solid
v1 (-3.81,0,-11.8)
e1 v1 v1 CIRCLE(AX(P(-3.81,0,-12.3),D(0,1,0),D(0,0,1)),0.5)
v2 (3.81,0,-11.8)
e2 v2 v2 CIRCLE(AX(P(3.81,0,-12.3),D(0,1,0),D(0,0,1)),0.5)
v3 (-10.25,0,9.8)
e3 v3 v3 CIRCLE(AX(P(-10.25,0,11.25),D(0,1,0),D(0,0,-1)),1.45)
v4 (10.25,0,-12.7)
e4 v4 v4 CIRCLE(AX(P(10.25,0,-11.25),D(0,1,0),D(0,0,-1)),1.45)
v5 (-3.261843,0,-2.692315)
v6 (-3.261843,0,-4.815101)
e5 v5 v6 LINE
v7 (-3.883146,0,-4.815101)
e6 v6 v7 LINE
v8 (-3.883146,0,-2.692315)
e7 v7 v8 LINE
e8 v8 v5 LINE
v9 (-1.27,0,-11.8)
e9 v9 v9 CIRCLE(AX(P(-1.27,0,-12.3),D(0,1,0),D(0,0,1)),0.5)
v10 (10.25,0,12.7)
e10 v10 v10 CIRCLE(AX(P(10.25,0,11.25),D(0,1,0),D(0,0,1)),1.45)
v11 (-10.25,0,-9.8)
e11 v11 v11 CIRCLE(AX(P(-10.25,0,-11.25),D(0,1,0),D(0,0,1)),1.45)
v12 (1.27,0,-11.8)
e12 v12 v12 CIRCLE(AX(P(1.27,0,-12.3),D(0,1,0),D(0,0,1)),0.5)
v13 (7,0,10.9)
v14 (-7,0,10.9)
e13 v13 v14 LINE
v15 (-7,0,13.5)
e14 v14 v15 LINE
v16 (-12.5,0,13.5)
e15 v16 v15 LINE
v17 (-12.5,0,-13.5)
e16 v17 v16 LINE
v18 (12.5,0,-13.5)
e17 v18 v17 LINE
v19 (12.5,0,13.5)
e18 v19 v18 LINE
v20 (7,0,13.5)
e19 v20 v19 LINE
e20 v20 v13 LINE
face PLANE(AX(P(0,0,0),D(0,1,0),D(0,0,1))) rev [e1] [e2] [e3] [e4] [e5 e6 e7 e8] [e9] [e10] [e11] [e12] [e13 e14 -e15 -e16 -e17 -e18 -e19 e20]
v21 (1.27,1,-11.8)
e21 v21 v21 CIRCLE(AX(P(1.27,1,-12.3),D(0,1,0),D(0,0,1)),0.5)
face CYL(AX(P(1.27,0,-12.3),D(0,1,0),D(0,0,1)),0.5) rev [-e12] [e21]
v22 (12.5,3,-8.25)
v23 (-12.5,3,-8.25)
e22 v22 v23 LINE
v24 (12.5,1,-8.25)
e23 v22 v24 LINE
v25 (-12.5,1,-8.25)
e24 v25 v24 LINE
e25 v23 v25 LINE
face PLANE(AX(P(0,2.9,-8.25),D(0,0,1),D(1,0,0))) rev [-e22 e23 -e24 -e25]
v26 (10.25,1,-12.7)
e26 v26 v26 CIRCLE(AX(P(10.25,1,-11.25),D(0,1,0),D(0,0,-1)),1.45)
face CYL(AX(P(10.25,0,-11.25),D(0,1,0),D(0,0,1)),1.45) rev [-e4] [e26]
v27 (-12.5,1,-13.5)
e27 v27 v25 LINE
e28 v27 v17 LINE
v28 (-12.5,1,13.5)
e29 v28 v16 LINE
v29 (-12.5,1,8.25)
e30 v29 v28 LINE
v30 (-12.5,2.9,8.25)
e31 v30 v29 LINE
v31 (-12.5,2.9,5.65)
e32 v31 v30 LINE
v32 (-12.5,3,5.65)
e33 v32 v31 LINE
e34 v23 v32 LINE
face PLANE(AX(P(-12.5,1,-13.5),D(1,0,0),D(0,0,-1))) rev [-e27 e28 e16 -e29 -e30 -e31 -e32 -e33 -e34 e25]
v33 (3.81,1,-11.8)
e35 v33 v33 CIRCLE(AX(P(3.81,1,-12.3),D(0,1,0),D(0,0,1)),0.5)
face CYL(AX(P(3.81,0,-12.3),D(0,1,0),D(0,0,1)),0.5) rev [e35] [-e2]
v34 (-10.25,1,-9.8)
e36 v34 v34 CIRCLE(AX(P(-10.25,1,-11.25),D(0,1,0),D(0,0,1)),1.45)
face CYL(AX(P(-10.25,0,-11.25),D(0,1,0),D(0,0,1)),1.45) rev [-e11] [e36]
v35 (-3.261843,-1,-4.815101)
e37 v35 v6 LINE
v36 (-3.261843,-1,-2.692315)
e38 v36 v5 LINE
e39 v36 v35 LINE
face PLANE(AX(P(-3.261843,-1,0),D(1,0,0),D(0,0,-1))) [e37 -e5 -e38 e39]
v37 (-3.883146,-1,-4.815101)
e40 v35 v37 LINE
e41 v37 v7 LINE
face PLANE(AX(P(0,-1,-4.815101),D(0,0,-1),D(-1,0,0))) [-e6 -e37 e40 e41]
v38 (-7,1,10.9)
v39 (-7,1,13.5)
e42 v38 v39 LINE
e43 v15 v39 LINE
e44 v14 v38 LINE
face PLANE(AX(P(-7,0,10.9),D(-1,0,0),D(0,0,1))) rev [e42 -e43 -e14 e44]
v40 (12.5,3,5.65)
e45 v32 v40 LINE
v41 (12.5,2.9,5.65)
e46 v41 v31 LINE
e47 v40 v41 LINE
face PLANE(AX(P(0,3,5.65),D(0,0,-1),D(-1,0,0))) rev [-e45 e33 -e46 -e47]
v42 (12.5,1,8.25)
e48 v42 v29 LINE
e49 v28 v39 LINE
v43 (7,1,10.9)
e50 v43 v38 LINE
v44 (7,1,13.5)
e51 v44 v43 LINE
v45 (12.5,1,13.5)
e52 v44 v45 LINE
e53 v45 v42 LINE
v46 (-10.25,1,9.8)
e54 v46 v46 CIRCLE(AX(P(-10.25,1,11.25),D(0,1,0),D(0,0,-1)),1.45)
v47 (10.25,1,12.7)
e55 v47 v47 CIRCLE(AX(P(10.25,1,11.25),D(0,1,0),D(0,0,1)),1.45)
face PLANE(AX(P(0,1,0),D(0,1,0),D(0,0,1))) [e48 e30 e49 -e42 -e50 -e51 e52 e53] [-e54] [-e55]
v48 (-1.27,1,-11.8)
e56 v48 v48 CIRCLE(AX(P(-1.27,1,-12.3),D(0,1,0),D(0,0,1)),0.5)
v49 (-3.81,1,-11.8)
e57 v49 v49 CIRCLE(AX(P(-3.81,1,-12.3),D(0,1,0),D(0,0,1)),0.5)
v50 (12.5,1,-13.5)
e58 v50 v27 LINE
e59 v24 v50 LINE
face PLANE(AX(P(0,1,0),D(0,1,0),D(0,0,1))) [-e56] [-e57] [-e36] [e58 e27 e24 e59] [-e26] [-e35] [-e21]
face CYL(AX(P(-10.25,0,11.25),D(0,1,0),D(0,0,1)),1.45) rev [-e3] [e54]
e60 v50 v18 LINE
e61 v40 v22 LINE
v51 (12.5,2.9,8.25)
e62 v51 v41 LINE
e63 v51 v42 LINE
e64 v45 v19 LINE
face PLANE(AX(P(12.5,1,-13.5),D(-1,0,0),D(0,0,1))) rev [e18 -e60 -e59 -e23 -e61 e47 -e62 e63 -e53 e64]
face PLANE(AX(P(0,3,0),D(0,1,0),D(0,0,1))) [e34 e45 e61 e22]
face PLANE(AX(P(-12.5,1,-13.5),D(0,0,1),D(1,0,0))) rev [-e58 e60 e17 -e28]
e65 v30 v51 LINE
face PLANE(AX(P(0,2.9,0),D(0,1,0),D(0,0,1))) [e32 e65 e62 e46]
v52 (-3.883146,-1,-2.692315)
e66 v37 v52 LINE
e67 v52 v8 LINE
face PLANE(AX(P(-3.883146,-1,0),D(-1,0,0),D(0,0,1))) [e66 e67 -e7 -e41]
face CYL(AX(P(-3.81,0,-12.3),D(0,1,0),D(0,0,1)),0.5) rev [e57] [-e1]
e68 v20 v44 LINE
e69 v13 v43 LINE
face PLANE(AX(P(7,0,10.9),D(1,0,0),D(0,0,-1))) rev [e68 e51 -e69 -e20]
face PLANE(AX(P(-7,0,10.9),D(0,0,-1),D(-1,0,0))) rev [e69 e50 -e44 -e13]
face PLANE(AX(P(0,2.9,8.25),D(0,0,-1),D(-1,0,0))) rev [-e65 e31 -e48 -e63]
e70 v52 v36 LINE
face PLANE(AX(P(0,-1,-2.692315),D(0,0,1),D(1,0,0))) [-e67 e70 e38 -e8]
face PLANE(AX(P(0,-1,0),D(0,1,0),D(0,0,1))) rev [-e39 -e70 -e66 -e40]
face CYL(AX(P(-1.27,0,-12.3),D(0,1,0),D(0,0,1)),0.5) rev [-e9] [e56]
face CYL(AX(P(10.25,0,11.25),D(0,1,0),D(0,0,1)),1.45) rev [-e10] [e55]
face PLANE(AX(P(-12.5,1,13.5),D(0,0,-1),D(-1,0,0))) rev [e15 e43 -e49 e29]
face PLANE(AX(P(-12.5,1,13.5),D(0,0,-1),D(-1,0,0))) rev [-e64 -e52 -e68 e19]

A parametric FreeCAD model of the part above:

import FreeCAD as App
import Part
import Sketcher


def add_polygon(sketch, points):
    """Adds a closed chain of lines whose ends are joined by coincident constraints."""
    first, n = sketch.GeometryCount, len(points)
    for a, b in zip(points, points[1:] + points[:1]):
        sketch.addGeometry(Part.LineSegment(App.Vector(*a, 0), App.Vector(*b, 0)), False)
    for i in range(n):
        sketch.addConstraint(Sketcher.Constraint("Coincident", first + i, 2, first + (i + 1) % n, 1))

doc = App.newDocument("Part")
body = doc.addObject("PartDesign::Body", "Body")

sketch1 = doc.addObject("Sketcher::SketchObject", "Sketch")
body.addObject(sketch1)
sketch1.AttachmentSupport = (doc.XZ_Plane, [""])
sketch1.MapMode = "FlatFace"
add_polygon(sketch1, [(-12, -14), (-12, 14), (12, 14), (12, -14)])
sketch1.addConstraint([
    Sketcher.Constraint("Vertical", 0),
    Sketcher.Constraint("Horizontal", 1),
    Sketcher.Constraint("Vertical", 2),
    Sketcher.Constraint("Horizontal", 3),
    Sketcher.Constraint("Symmetric", 0, 2, 2, 2, -1, 1),
    Sketcher.Constraint("DistanceX", 1, 1, 1, 2, 25.0),
    Sketcher.Constraint("DistanceY", 0, 1, 0, 2, 27.0),
])
pad1 = doc.addObject("PartDesign::Pad", "Pad")
body.addObject(pad1)
pad1.Profile = sketch1
pad1.Length = 1
pad1.Reversed = True

sketch2 = doc.addObject("Sketcher::SketchObject", "Sketch001")
body.addObject(sketch2)
sketch2.AttachmentSupport = (doc.XZ_Plane, [""])
sketch2.MapMode = "FlatFace"
add_polygon(sketch2, [(-12, -8), (-12, 8), (12, 8), (12, -8)])
sketch2.addConstraint([
    Sketcher.Constraint("Vertical", 0),
    Sketcher.Constraint("Horizontal", 1),
    Sketcher.Constraint("Vertical", 2),
    Sketcher.Constraint("Horizontal", 3),
    Sketcher.Constraint("Symmetric", 0, 2, 2, 2, -1, 1),
    Sketcher.Constraint("DistanceX", 1, 1, 1, 2, 25.0),
    Sketcher.Constraint("DistanceY", 0, 1, 0, 2, 16.5),
])
pad2 = doc.addObject("PartDesign::Pad", "Pad001")
body.addObject(pad2)
pad2.Profile = sketch2
pad2.Length = 2.9
pad2.Reversed = True

sketch3 = doc.addObject("Sketcher::SketchObject", "Sketch002")
body.addObject(sketch3)
sketch3.AttachmentSupport = (doc.XZ_Plane, [""])
sketch3.MapMode = "FlatFace"
add_polygon(sketch3, [(-12, -8), (-12, 6), (12, 6), (12, -8)])
sketch3.addConstraint([
    Sketcher.Constraint("Vertical", 0),
    Sketcher.Constraint("Horizontal", 1),
    Sketcher.Constraint("Vertical", 2),
    Sketcher.Constraint("Horizontal", 3),
    Sketcher.Constraint("DistanceX", 1, 1, 1, 2, 25.0),
    Sketcher.Constraint("DistanceY", 0, 1, 0, 2, 13.9),
    Sketcher.Constraint("DistanceX", 0, 2, -1, 1, 12.5),
    Sketcher.Constraint("DistanceY", -1, 1, 0, 2, 5.65),
])
pad3 = doc.addObject("PartDesign::Pad", "Pad002")
body.addObject(pad3)
pad3.Profile = sketch3
pad3.Length = 3
pad3.Reversed = True

sketch4 = doc.addObject("Sketcher::SketchObject", "Sketch003")
body.addObject(sketch4)
sketch4.AttachmentSupport = (doc.XZ_Plane, [""])
sketch4.MapMode = "FlatFace"
sketch4.AttachmentOffset = App.Placement(App.Vector(0, 0, -1), App.Rotation())
add_polygon(sketch4, [(-7, 10.9), (-7, 13.5), (7, 13.5), (7, 10.9)])
sketch4.addConstraint([
    Sketcher.Constraint("Vertical", 0),
    Sketcher.Constraint("Horizontal", 1),
    Sketcher.Constraint("Vertical", 2),
    Sketcher.Constraint("Horizontal", 3),
    Sketcher.Constraint("DistanceX", 1, 1, 1, 2, 14.0),
    Sketcher.Constraint("DistanceY", 0, 1, 0, 2, 2.6),
    Sketcher.Constraint("DistanceX", 0, 2, -1, 1, 7.0),
    Sketcher.Constraint("DistanceY", -1, 1, 0, 2, 13.5),
])
pocket1 = doc.addObject("PartDesign::Pocket", "Pocket")
body.addObject(pocket1)
pocket1.Profile = sketch4
pocket1.Type = "ThroughAll"
pocket1.Reversed = True

sketch5 = doc.addObject("Sketcher::SketchObject", "Sketch004")
body.addObject(sketch5)
sketch5.AttachmentSupport = (doc.XZ_Plane, [""])
sketch5.MapMode = "FlatFace"
sketch5.AttachmentOffset = App.Placement(App.Vector(0, 0, -1), App.Rotation())
sketch5.addGeometry([
    Part.Circle(App.Vector(-10.2, -11.2, 0), App.Vector(0, 0, 1), 1.4),
    Part.Circle(App.Vector(10.2, -11.2, 0), App.Vector(0, 0, 1), 1.4),
    Part.Circle(App.Vector(-10.2, 11.2, 0), App.Vector(0, 0, 1), 1.4),
    Part.Circle(App.Vector(10.2, 11.2, 0), App.Vector(0, 0, 1), 1.4),
    Part.Circle(App.Vector(-3.8, -12.3, 0), App.Vector(0, 0, 1), 0.5),
    Part.Circle(App.Vector(-1.3, -12.3, 0), App.Vector(0, 0, 1), 0.5),
    Part.Circle(App.Vector(1.3, -12.3, 0), App.Vector(0, 0, 1), 0.5),
    Part.Circle(App.Vector(3.8, -12.3, 0), App.Vector(0, 0, 1), 0.5),
], False)
sketch5.addConstraint([
    Sketcher.Constraint("Equal", 0, 1),
    Sketcher.Constraint("Equal", 1, 2),
    Sketcher.Constraint("Equal", 2, 3),
    Sketcher.Constraint("Equal", 4, 5),
    Sketcher.Constraint("Equal", 5, 6),
    Sketcher.Constraint("Equal", 6, 7),
    Sketcher.Constraint("Symmetric", 1, 3, 2, 3, -1, 1),
    Sketcher.Constraint("Symmetric", 0, 3, 3, 3, -1, 1),
    Sketcher.Constraint("Symmetric", 0, 3, 1, 3, -2),
    Sketcher.Constraint("Symmetric", 5, 3, 6, 3, -2),
    Sketcher.Constraint("Symmetric", 4, 3, 7, 3, -2),
    Sketcher.Constraint("Horizontal", 4, 3, 5, 3),
    Sketcher.Constraint("Diameter", 4, 1.0),
    Sketcher.Constraint("Diameter", 0, 2.9),
    Sketcher.Constraint("DistanceY", 4, 3, -1, 1, 12.3),
    Sketcher.Constraint("DistanceX", 0, 3, 1, 3, 20.5),
    Sketcher.Constraint("DistanceY", 0, 3, 2, 3, 22.5),
    Sketcher.Constraint("DistanceX", 4, 3, -1, 1, 3.81),
    Sketcher.Constraint("DistanceX", 5, 3, -1, 1, 1.27),
])
pocket2 = doc.addObject("PartDesign::Pocket", "Pocket001")
body.addObject(pocket2)
pocket2.Profile = sketch5
pocket2.Type = "ThroughAll"
pocket2.Reversed = True

sketch6 = doc.addObject("Sketcher::SketchObject", "Sketch005")
body.addObject(sketch6)
sketch6.AttachmentSupport = (doc.XZ_Plane, [""])
sketch6.MapMode = "FlatFace"
sketch6.AttachmentOffset = App.Placement(App.Vector(0, 0, -3), App.Rotation())
add_polygon(sketch6, [(-3.9, -2.7), (-3.9, -4.8), (-3.3, -4.8), (-3.3, -2.7)])
sketch6.addConstraint([
    Sketcher.Constraint("Vertical", 0),
    Sketcher.Constraint("Horizontal", 1),
    Sketcher.Constraint("Vertical", 2),
    Sketcher.Constraint("Horizontal", 3),
    Sketcher.Constraint("DistanceY", 0, 2, -1, 1, 4.815101),
    Sketcher.Constraint("DistanceX", 1, 1, 1, 2, 0.621303),
    Sketcher.Constraint("DistanceY", 0, 2, 0, 1, 2.122787),
    Sketcher.Constraint("DistanceX", 0, 2, -1, 1, 3.883146),
])
pad4 = doc.addObject("PartDesign::Pad", "Pad003")
body.addObject(pad4)
pad4.Profile = sketch6
pad4.Length = 4

doc.recompute()
